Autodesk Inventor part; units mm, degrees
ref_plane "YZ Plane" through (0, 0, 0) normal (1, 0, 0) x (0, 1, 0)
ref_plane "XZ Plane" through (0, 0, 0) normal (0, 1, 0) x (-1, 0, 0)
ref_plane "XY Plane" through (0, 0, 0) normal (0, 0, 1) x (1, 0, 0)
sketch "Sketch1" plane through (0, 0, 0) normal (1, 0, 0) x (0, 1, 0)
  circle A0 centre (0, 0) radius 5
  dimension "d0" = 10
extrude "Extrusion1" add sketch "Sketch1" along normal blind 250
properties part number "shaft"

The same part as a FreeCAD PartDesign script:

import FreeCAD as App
import Part
import Sketcher
Q = App.Units.Quantity

doc = App.newDocument("Part")
params = doc.addObject("Spreadsheet::Sheet", "Params")
for row, (alias, value) in enumerate([
    ("sketch1_diameter", "10 mm"),
    ("pad1_length", "250 mm"),
], start=1):
    params.set(f"A{row}", alias)
    params.set(f"B{row}", "=" + value)
    params.setAlias(f"B{row}", alias)

body = doc.addObject("PartDesign::Body", "Body")

sketch1 = body.newObject("Sketcher::SketchObject", "Sketch")
sketch1.AttachmentSupport = (doc.getObject("YZ_Plane"), [""])
sketch1.MapMode = "FlatFace"
sketch1.addGeometry(Part.Circle(App.Vector(0, 0, 0), App.Vector(0, 0, 1), 5), False)
sketch1.addConstraint(Sketcher.Constraint("Coincident", 0, 3, -1, 1))
sketch1.addConstraint(Sketcher.Constraint("Diameter", 0, Q("10 mm")))
sketch1.setExpression("Constraints[1]", "Params.sketch1_diameter")
pad1 = body.newObject("PartDesign::Pad", "Pad")
pad1.Profile = sketch1
pad1.setExpression("Length", "Params.pad1_length")

doc.recompute()
